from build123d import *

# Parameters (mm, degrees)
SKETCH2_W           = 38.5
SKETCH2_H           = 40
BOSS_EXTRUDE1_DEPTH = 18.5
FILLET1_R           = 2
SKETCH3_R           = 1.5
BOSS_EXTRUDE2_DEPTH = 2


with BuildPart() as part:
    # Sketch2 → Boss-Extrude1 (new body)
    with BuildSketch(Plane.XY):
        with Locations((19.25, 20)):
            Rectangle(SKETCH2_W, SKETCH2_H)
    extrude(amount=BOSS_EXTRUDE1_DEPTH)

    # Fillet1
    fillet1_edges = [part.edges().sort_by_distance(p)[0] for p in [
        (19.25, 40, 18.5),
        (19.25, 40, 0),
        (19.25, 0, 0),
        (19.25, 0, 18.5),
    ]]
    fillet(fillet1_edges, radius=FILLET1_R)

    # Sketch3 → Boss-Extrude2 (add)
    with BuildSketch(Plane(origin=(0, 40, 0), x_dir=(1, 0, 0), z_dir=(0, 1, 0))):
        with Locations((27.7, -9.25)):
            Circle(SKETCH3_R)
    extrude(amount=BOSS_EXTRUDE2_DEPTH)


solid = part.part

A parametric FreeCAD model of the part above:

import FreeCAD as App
import Part
import Sketcher
Q = App.Units.Quantity


def edges_at(feature, points):
    """Names of the edges that pass closest to the given points."""
    edges = feature.Shape.Edges
    near = lambda p: min(range(len(edges)), key=lambda i: edges[i].distToShape(Part.Vertex(*p))[0])
    return sorted({f"Edge{near(p) + 1}" for p in points})


def add_polygon(sketch, points):
    """Adds a closed chain of lines whose ends are joined by coincident constraints."""
    first, n = sketch.GeometryCount, len(points)
    for a, b in zip(points, points[1:] + points[:1]):
        sketch.addGeometry(Part.LineSegment(App.Vector(*a, 0), App.Vector(*b, 0)), False)
    for i in range(n):
        sketch.addConstraint(Sketcher.Constraint("Coincident", first + i, 2, first + (i + 1) % n, 1))

doc = App.newDocument("Part")
body = doc.addObject("PartDesign::Body", "Body")

# Sketch on XY plane
sketch1 = doc.addObject("Sketcher::SketchObject", "Sketch")
body.addObject(sketch1)
sketch1.AttachmentSupport = (doc.XY_Plane, [""])
sketch1.MapMode = "FlatFace"
add_polygon(sketch1, [(0, 40), (0, 0), (38, 0), (38, 40)])  # lines 0-3
sketch1.addConstraint(Sketcher.Constraint("Vertical", 0))
sketch1.addConstraint(Sketcher.Constraint("Horizontal", 1))
sketch1.addConstraint(Sketcher.Constraint("Vertical", 2))
sketch1.addConstraint(Sketcher.Constraint("Horizontal", 3))
sketch1.addConstraint(Sketcher.Constraint("Coincident", 0, 2, -1, 1))
sketch1.addConstraint(Sketcher.Constraint("DistanceY", 0, 2, 0, 1, Q("40 mm")))
sketch1.addConstraint(Sketcher.Constraint("DistanceX", 1, 1, 1, 2, Q("38.5 mm")))
pad1 = doc.addObject("PartDesign::Pad", "Pad")
body.addObject(pad1)
pad1.Profile = sketch1
pad1.Length = 18.5
doc.recompute()

fillet = doc.addObject("PartDesign::Fillet", "Fillet")
body.addObject(fillet)
fillet.Base = (pad1, edges_at(pad1, [
    (19.25, 40, 18.5),
    (19.25, 40, 0),
    (19.25, 0, 0),
    (19.25, 0, 18.5),
]))
fillet.Radius = 2

# Sketch on XZ plane
sketch2 = doc.addObject("Sketcher::SketchObject", "Sketch001")
body.addObject(sketch2)
sketch2.AttachmentSupport = (doc.XZ_Plane, [""])
sketch2.MapMode = "FlatFace"
sketch2.AttachmentOffset = App.Placement(App.Vector(0, 0, -40), App.Rotation())
sketch2.addGeometry(Part.Circle(App.Vector(27.7, 9.2, 0), App.Vector(0, 0, 1), 1.5), False)
sketch2.addConstraint(Sketcher.Constraint("Diameter", 0, Q("3 mm")))
sketch2.addConstraint(Sketcher.Constraint("DistanceX", -1, 1, 0, 3, Q("27.7 mm")))
sketch2.addConstraint(Sketcher.Constraint("DistanceY", -1, 1, 0, 3, Q("9.25 mm")))
pad2 = doc.addObject("PartDesign::Pad", "Pad001")
body.addObject(pad2)
pad2.Profile = sketch2
pad2.Length = 2
pad2.Reversed = True

doc.recompute()
